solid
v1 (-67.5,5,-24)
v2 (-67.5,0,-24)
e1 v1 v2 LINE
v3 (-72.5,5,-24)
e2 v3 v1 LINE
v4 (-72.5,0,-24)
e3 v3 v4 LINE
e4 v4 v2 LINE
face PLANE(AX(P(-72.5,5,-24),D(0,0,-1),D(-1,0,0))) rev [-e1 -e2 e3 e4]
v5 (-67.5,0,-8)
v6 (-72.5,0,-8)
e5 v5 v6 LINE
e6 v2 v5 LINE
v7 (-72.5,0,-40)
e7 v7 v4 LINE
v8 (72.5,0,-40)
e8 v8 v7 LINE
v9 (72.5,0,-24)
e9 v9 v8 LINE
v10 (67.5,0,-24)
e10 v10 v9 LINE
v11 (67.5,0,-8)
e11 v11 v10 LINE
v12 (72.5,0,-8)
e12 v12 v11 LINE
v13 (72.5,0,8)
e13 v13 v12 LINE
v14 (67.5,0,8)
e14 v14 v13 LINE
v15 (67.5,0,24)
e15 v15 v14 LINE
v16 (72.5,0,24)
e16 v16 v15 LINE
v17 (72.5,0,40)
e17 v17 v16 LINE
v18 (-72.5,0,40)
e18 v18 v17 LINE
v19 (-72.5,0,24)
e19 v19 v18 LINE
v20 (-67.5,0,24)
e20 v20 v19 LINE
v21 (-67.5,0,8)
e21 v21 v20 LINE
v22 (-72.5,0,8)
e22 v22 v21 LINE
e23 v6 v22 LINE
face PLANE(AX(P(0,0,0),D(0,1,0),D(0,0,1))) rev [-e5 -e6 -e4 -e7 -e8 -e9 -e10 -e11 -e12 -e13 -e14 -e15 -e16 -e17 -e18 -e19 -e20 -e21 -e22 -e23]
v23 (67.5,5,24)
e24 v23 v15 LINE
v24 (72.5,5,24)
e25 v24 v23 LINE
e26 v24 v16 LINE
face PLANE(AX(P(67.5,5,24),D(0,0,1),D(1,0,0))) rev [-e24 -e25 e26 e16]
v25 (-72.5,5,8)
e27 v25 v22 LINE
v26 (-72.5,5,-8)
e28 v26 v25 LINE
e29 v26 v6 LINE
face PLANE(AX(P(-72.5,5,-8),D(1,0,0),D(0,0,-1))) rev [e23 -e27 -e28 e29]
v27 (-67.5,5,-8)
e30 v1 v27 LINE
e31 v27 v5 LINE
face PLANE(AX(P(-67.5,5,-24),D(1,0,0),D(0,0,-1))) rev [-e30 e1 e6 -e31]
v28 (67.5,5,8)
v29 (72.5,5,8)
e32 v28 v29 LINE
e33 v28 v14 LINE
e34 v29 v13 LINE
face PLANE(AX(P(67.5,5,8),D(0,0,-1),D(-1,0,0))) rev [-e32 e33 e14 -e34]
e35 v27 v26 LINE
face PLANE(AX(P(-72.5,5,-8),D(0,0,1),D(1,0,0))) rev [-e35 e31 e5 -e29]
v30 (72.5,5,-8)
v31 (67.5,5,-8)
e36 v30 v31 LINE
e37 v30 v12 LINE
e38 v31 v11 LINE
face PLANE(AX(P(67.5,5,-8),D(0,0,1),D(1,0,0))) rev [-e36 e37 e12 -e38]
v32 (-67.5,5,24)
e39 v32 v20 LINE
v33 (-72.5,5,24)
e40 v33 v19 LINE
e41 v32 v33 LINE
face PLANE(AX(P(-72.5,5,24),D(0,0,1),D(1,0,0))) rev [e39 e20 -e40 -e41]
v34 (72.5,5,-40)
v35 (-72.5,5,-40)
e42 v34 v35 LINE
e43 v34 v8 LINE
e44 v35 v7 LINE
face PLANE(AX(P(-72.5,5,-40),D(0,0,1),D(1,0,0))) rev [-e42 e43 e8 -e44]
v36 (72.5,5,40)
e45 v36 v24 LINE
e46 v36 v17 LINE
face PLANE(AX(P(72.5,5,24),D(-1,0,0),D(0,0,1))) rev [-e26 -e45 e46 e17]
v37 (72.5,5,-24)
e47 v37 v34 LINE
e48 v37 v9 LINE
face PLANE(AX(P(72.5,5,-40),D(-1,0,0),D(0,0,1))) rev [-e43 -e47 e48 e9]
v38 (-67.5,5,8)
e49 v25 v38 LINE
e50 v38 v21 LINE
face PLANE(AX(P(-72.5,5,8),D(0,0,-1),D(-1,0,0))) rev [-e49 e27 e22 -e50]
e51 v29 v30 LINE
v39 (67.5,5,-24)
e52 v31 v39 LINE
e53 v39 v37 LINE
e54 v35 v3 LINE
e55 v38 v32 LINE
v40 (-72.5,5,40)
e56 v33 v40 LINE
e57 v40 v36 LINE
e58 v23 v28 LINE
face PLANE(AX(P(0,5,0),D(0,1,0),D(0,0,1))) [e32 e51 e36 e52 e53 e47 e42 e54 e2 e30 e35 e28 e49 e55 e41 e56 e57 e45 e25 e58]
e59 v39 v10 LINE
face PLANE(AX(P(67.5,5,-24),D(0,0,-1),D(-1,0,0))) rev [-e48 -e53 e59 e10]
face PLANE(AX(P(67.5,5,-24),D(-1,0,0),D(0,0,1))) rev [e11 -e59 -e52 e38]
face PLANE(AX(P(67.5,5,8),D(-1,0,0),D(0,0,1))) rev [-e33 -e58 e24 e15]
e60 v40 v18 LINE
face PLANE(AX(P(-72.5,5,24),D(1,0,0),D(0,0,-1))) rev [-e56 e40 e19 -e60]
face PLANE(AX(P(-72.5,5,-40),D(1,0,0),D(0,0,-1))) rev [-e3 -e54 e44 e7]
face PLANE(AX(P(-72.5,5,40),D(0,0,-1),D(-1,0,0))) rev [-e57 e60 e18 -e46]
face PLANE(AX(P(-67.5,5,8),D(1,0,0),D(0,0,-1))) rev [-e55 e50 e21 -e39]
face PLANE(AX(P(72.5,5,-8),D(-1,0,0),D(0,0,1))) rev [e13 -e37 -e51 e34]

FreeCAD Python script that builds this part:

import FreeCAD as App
import Part
import Sketcher
from FreeCAD import Vector


def add_polygon(sketch, points):
    """Adds a closed chain of lines whose ends are joined by coincident constraints."""
    first, n = sketch.GeometryCount, len(points)
    for a, b in zip(points, points[1:] + points[:1]):
        sketch.addGeometry(Part.LineSegment(App.Vector(*a, 0), App.Vector(*b, 0)), False)
    for i in range(n):
        sketch.addConstraint(Sketcher.Constraint("Coincident", first + i, 2, first + (i + 1) % n, 1))

doc = App.newDocument("Part")
params = doc.addObject("Spreadsheet::Sheet", "Params")
for row, (alias, value) in enumerate([
    ("sketch1_width", "5 mm"),
    ("sketch1_width2", "145 mm"),
    ("sketch1_height", "16 mm"),
    ("pad1_length", "5 mm"),
], start=1):
    params.set(f"A{row}", alias)
    params.set(f"B{row}", "=" + value)
    params.setAlias(f"B{row}", alias)

body = doc.addObject("PartDesign::Body", "Body")

sketch1 = body.newObject("Sketcher::SketchObject", "Sketch")
sketch1.AttachmentSupport = (doc.getObject("XZ_Plane"), [""])
sketch1.MapMode = "FlatFace"
add_polygon(sketch1, [(-68, -24), (-68, -8), (-72, -8), (-72, 8), (-68, 8), (-68, 24), (-72, 24), (-72, 40), (72, 40), (72, 24), (68, 24), (68, 8), (72, 8), (72, -8), (68, -8), (68, -24), (72, -24), (72, -40), (-72, -40), (-72, -24)])
sketch1.addConstraint(Sketcher.Constraint("Vertical", 0))
sketch1.addConstraint(Sketcher.Constraint("Horizontal", 1))
sketch1.addConstraint(Sketcher.Constraint("Vertical", 2))
sketch1.addConstraint(Sketcher.Constraint("Horizontal", 3))
sketch1.addConstraint(Sketcher.Constraint("Vertical", 4))
sketch1.addConstraint(Sketcher.Constraint("Horizontal", 5))
sketch1.addConstraint(Sketcher.Constraint("Vertical", 6))
sketch1.addConstraint(Sketcher.Constraint("Horizontal", 7))
sketch1.addConstraint(Sketcher.Constraint("Vertical", 8))
sketch1.addConstraint(Sketcher.Constraint("Horizontal", 9))
sketch1.addConstraint(Sketcher.Constraint("Vertical", 10))
sketch1.addConstraint(Sketcher.Constraint("Horizontal", 11))
sketch1.addConstraint(Sketcher.Constraint("Vertical", 12))
sketch1.addConstraint(Sketcher.Constraint("Horizontal", 13))
sketch1.addConstraint(Sketcher.Constraint("Vertical", 14))
sketch1.addConstraint(Sketcher.Constraint("Horizontal", 15))
sketch1.addConstraint(Sketcher.Constraint("Vertical", 16))
sketch1.addConstraint(Sketcher.Constraint("Horizontal", 17))
sketch1.addConstraint(Sketcher.Constraint("Vertical", 18))
sketch1.addConstraint(Sketcher.Constraint("Horizontal", 19))
sketch1.addConstraint(Sketcher.Constraint("Symmetric", 0, 2, 10, 2, -1, 1))
sketch1.addConstraint(Sketcher.Constraint("Symmetric", 2, 2, 12, 2, -1, 1))
sketch1.addConstraint(Sketcher.Constraint("Symmetric", 4, 2, 14, 2, -1, 1))
sketch1.addConstraint(Sketcher.Constraint("Symmetric", 6, 2, 16, 2, -1, 1))
sketch1.addConstraint(Sketcher.Constraint("Symmetric", 8, 2, 18, 2, -1, 1))
sketch1.addConstraint(Sketcher.Constraint("Symmetric", 5, 2, 8, 2, -2))
sketch1.addConstraint(Sketcher.Constraint("Symmetric", 3, 2, 10, 2, -2))
sketch1.addConstraint(Sketcher.Constraint("Vertical", 2, 2, 5, 2))
sketch1.addConstraint(Sketcher.Constraint("Equal", 0, 2))
sketch1.addConstraint(Sketcher.Constraint("Equal", 4, 6))
sketch1.addConstraint(Sketcher.Constraint("DistanceX", 1, 2, 1, 1, 5.0))
sketch1.addConstraint(Sketcher.Constraint("DistanceX", 7, 1, 7, 2, 145.0))
sketch1.addConstraint(Sketcher.Constraint("DistanceY", 0, 1, 0, 2, 16.0))
sketch1.setExpression("Constraints[50]", "Params.sketch1_width")
sketch1.setExpression("Constraints[51]", "Params.sketch1_width2")
sketch1.setExpression("Constraints[52]", "Params.sketch1_height")
pad1 = body.newObject("PartDesign::Pad", "Pad")
pad1.Profile = sketch1
pad1.setExpression("Length", "Params.pad1_length")
pad1.Reversed = True

doc.recompute()
